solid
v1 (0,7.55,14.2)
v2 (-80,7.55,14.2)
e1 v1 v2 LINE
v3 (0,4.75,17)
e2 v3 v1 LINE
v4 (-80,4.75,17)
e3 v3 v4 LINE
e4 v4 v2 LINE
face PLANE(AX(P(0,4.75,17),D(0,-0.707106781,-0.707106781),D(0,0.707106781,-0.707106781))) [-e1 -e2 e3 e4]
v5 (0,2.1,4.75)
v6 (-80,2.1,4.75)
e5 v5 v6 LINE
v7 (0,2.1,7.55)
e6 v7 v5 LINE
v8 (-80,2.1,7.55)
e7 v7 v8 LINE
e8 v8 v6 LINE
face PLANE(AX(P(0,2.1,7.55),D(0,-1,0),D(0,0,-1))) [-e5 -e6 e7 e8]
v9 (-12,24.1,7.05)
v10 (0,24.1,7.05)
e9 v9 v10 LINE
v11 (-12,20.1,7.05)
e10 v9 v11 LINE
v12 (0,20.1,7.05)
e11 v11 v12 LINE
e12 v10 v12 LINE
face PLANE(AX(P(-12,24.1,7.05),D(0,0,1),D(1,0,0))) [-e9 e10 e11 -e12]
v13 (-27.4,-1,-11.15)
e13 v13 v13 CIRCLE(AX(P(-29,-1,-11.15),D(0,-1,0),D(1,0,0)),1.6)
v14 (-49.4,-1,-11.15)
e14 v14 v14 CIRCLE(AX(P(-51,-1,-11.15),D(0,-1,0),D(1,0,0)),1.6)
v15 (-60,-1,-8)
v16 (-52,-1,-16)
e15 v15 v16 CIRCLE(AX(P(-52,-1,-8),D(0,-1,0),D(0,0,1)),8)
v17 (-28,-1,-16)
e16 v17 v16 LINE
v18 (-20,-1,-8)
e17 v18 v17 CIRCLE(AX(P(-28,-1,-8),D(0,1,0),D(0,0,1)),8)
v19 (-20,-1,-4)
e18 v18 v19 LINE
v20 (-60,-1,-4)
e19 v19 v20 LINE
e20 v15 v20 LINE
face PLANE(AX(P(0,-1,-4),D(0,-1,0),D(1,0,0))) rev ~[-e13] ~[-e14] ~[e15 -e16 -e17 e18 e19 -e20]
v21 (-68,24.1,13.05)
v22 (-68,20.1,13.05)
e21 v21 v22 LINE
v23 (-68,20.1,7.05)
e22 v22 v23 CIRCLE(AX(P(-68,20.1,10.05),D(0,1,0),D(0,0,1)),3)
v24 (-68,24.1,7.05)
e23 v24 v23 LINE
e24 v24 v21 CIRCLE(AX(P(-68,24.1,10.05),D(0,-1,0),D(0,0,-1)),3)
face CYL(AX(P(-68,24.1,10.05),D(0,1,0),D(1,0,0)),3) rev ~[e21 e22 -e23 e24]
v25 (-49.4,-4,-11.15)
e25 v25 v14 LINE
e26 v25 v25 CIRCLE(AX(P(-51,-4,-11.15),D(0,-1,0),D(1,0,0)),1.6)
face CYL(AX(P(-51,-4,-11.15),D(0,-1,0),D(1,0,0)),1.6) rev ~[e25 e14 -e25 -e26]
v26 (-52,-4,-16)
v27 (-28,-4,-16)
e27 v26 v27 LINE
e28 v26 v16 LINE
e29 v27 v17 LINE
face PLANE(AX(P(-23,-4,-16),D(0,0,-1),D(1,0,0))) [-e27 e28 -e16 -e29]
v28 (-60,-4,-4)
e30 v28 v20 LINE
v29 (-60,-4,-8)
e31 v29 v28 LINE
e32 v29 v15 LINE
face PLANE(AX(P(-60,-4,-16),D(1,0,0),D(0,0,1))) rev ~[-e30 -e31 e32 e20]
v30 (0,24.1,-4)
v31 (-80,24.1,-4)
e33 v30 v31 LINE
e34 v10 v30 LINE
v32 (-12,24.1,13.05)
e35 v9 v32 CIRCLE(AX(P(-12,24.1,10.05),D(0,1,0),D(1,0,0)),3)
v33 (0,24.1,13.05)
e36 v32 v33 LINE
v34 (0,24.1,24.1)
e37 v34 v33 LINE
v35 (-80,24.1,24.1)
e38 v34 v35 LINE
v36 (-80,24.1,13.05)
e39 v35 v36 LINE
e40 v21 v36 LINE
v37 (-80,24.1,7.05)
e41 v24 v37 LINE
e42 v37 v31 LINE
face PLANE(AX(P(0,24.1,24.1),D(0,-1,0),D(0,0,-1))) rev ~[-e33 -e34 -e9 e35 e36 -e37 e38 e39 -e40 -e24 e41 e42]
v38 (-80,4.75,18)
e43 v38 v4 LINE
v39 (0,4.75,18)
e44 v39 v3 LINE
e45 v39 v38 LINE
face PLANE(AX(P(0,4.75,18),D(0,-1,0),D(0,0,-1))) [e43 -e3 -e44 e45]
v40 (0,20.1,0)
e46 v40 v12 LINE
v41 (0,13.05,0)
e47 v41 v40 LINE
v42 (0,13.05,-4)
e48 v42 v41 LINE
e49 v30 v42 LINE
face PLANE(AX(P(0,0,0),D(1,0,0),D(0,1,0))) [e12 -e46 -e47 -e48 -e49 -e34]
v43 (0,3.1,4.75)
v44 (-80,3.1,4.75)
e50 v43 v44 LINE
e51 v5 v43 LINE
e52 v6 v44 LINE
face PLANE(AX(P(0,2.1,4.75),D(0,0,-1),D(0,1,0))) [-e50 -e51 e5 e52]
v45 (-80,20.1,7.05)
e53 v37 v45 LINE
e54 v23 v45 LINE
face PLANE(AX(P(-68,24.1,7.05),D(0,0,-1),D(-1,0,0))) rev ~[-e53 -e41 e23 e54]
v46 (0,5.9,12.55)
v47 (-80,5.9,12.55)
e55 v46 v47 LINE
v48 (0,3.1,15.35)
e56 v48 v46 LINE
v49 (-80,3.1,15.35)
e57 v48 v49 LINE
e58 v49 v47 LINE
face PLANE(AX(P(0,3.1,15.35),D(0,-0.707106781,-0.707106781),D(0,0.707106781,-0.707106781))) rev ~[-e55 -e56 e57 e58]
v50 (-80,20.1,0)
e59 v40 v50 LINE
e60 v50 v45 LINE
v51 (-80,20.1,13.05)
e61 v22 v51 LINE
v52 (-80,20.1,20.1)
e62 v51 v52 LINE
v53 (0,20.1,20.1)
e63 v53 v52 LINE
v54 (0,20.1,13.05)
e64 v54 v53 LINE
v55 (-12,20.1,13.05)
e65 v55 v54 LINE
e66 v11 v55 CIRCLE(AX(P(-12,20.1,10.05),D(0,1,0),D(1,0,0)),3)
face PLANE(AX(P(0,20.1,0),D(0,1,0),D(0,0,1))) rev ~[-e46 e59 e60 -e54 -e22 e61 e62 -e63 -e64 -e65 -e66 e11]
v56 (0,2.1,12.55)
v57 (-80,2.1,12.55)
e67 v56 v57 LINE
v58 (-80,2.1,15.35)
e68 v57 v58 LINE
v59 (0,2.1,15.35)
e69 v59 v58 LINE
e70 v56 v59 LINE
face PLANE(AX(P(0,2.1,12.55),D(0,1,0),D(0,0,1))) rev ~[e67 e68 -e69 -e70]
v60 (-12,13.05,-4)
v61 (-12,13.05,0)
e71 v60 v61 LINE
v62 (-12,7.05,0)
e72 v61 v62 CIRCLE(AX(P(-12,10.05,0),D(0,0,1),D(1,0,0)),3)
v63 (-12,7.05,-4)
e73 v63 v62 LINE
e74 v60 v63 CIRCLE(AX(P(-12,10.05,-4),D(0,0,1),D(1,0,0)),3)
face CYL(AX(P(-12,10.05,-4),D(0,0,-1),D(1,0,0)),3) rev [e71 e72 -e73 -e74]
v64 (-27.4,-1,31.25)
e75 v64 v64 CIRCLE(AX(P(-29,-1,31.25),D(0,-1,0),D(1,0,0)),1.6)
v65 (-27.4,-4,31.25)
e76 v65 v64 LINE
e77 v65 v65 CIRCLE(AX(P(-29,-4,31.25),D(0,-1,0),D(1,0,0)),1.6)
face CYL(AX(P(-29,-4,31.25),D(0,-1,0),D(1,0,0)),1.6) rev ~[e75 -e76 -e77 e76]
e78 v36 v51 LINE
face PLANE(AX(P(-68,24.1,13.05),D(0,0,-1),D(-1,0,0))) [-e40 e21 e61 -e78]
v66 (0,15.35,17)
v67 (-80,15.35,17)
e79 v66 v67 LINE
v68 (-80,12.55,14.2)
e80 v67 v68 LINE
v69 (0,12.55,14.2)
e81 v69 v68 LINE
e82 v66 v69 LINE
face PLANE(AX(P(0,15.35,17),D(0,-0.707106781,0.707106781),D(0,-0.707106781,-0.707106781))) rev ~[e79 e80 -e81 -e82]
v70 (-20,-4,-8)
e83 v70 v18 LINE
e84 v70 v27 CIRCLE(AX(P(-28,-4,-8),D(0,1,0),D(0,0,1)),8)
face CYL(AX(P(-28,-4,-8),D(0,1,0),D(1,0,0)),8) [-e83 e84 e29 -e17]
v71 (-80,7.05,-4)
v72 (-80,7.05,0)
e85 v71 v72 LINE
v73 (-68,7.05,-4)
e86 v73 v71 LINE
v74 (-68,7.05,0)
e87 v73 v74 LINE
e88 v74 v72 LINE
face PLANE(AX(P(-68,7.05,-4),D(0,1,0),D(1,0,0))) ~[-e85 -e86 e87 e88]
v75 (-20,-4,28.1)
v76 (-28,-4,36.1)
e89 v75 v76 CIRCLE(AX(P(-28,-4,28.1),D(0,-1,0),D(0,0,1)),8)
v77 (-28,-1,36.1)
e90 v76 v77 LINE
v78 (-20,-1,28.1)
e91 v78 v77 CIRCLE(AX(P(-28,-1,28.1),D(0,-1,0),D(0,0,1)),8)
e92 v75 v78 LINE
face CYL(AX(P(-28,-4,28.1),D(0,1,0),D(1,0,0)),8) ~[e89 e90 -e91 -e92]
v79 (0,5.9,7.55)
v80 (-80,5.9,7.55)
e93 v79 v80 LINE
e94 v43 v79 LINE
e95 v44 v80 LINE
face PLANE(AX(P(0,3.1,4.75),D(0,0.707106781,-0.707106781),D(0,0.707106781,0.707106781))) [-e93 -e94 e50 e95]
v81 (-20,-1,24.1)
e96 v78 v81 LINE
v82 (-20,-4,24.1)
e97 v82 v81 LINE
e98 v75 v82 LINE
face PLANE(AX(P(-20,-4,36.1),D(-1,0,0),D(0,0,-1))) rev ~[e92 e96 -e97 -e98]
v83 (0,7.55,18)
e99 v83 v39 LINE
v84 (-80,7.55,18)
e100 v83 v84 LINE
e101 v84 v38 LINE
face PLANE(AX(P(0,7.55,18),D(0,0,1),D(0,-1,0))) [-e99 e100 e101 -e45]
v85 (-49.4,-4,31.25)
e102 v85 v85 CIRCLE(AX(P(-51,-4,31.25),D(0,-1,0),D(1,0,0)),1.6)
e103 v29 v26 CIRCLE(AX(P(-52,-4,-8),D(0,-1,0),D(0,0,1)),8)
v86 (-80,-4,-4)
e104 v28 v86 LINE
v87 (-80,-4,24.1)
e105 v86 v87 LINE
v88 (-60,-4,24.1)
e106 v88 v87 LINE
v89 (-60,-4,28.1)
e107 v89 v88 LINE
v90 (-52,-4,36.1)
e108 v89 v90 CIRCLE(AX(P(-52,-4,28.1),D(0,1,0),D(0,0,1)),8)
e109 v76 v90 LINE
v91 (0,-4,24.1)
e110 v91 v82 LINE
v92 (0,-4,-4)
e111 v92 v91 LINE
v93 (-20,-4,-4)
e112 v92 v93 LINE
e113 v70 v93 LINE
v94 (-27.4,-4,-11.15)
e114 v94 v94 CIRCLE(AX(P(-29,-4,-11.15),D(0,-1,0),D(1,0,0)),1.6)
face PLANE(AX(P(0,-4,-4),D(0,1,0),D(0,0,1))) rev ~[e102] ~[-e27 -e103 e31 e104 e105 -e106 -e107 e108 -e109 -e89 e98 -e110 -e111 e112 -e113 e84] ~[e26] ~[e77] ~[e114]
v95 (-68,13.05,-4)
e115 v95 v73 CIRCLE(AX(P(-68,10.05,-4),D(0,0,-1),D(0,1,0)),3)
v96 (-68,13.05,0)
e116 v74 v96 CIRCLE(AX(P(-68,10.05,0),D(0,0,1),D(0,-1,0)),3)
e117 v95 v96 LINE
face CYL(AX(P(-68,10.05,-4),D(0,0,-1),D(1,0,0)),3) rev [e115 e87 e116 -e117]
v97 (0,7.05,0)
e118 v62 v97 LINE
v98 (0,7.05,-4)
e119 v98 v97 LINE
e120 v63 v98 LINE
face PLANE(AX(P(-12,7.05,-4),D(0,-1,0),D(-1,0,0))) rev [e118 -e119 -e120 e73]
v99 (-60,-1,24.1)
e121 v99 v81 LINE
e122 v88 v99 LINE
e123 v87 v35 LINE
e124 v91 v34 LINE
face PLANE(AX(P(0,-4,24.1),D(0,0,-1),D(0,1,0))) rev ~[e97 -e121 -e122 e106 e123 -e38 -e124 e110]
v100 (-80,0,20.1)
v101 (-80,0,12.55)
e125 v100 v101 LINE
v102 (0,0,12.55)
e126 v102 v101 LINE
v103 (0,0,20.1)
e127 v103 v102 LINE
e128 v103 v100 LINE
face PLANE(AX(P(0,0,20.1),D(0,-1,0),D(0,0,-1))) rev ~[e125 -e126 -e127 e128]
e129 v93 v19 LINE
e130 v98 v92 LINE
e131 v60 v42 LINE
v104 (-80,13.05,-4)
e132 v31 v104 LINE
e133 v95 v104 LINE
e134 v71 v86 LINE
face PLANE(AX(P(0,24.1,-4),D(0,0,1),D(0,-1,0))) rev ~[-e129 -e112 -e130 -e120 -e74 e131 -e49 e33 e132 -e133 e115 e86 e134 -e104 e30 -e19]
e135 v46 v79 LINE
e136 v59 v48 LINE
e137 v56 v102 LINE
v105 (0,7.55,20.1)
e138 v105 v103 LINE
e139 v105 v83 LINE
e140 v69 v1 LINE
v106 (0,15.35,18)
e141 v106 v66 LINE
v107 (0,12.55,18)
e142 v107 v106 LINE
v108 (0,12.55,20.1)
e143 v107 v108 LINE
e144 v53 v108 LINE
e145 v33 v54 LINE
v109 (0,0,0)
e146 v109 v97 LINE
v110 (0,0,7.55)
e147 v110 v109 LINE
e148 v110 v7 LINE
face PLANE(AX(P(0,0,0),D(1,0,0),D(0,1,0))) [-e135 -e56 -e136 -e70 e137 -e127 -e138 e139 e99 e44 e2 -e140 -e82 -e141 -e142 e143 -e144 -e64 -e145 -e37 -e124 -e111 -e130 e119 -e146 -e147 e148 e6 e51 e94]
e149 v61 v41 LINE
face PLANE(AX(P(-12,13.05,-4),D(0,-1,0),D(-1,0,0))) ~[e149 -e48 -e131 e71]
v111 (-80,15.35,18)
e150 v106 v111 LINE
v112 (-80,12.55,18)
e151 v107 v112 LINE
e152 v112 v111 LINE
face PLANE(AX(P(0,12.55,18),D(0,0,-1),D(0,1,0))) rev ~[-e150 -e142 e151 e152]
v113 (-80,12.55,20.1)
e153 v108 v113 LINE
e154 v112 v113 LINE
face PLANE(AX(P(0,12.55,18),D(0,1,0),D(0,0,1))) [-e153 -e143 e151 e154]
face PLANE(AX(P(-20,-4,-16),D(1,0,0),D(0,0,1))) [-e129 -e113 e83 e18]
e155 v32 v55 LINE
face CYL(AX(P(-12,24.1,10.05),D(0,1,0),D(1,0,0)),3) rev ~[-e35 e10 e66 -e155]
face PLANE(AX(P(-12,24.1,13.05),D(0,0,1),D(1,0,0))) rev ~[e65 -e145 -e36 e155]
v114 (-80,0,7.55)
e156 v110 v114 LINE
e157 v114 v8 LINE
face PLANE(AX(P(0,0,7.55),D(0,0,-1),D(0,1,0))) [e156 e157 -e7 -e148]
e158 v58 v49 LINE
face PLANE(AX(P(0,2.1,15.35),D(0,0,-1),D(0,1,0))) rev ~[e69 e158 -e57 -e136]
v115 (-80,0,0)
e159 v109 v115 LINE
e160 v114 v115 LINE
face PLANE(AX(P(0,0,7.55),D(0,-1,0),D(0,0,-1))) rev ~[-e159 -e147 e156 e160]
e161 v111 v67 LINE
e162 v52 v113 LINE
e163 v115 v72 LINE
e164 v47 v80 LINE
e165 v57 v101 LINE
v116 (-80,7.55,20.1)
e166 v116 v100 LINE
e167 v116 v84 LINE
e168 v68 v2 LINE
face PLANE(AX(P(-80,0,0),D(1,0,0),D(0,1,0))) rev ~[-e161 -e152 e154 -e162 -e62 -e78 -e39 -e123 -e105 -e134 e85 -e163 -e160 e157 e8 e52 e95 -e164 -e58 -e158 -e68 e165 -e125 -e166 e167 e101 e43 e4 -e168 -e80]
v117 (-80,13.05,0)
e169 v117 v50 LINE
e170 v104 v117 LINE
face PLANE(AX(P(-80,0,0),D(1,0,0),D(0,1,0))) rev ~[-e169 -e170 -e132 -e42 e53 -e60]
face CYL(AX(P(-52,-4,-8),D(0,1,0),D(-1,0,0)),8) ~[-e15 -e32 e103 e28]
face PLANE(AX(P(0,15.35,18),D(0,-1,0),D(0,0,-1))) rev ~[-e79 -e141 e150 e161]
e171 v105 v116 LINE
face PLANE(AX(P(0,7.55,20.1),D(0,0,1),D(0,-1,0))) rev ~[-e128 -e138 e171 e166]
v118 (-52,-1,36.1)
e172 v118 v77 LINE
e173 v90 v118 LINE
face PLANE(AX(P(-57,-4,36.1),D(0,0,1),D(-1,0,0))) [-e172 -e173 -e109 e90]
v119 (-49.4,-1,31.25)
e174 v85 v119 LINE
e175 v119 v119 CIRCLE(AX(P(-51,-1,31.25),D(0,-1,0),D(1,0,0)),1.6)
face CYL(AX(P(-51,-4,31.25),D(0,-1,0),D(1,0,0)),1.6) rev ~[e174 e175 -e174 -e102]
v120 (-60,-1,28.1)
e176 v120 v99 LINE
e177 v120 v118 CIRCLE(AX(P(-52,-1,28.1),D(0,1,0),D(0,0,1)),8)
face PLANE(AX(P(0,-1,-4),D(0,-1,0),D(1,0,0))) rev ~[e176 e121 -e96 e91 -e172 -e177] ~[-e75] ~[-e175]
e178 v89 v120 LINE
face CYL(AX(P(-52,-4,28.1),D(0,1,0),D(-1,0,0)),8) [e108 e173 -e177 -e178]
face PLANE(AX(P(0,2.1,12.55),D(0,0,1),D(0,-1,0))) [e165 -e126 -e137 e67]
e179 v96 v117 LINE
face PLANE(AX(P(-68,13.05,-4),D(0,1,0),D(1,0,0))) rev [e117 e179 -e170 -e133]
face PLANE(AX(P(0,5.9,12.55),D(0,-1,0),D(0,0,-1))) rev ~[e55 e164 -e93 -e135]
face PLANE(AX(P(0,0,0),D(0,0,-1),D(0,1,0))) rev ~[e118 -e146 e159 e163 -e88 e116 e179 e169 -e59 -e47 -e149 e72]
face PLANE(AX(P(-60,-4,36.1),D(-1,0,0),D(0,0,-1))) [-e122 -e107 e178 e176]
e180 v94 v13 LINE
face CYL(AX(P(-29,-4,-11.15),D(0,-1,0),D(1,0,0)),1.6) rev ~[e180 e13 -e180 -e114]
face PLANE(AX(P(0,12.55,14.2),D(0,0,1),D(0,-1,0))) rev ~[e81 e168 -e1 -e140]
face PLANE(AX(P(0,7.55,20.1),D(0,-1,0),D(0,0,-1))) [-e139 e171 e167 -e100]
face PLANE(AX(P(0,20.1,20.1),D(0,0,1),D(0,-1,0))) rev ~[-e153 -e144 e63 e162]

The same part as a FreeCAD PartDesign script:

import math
import FreeCAD as App
import Part
import Sketcher

V = App.Vector


def edges_at(feature, points):
    """Names of the edges that pass closest to the given points."""
    edges = feature.Shape.Edges
    near = lambda p: min(range(len(edges)), key=lambda i: edges[i].distToShape(Part.Vertex(*p))[0])
    return sorted({f"Edge{near(p) + 1}" for p in points})


def add_polygon(sketch, points):
    """Adds a closed chain of lines whose ends are joined by coincident constraints."""
    first, n = sketch.GeometryCount, len(points)
    for a, b in zip(points, points[1:] + points[:1]):
        sketch.addGeometry(Part.LineSegment(App.Vector(*a, 0), App.Vector(*b, 0)), False)
    for i in range(n):
        sketch.addConstraint(Sketcher.Constraint("Coincident", first + i, 2, first + (i + 1) % n, 1))

doc = App.newDocument("Part")
body = doc.addObject("PartDesign::Body", "Body")

sketch1 = body.newObject("Sketcher::SketchObject", "Sketch")
sketch1.AttachmentSupport = (doc.getObject("YZ_Plane"), [""])
sketch1.MapMode = "FlatFace"
add_polygon(sketch1, [(24.1, 24.1), (-4, 24.1), (-4, -4), (24.1, -4)])
add_polygon(sketch1, [(20.1, 0), (0, 0), (0, 7.5), (2.1, 7.5), (2.1, 4.8), (3.1, 4.8), (5.9, 7.5), (5.9, 12.6), (3.1, 15.3), (2.1, 15.3), (2.1, 12.6), (0, 12.6), (0, 20.1), (7.5, 20.1), (7.5, 18), (4.8, 18), (4.8, 17), (7.5, 14.2), (12.6, 14.2), (15.3, 17), (15.3, 18), (12.6, 18), (12.6, 20.1), (20.1, 20.1)])
sketch1.addConstraint([
    Sketcher.Constraint("Horizontal", 0),
    Sketcher.Constraint("Vertical", 1),
    Sketcher.Constraint("Horizontal", 2),
    Sketcher.Constraint("Vertical", 3),
    Sketcher.Constraint("Horizontal", 4),
    Sketcher.Constraint("Vertical", 5),
    Sketcher.Constraint("Horizontal", 6),
    Sketcher.Constraint("Vertical", 7),
    Sketcher.Constraint("Horizontal", 8),
    Sketcher.Constraint("Vertical", 10),
    Sketcher.Constraint("Horizontal", 12),
    Sketcher.Constraint("Vertical", 13),
    Sketcher.Constraint("Horizontal", 14),
    Sketcher.Constraint("Vertical", 15),
    Sketcher.Constraint("Horizontal", 16),
    Sketcher.Constraint("Vertical", 17),
    Sketcher.Constraint("Horizontal", 18),
    Sketcher.Constraint("Vertical", 19),
    Sketcher.Constraint("Horizontal", 21),
    Sketcher.Constraint("Vertical", 23),
    Sketcher.Constraint("Horizontal", 24),
    Sketcher.Constraint("Vertical", 25),
    Sketcher.Constraint("Horizontal", 26),
    Sketcher.Constraint("Vertical", 27),
    Sketcher.Constraint("Coincident", 4, 2, -1, 1),
    Sketcher.Constraint("PointOnObject", 14, 2, -2),
    Sketcher.Constraint("Perpendicular", 9, 11),
    Sketcher.Constraint("Parallel", 11, 20),
    Sketcher.Constraint("Perpendicular", 20, 22),
    Sketcher.Constraint("Horizontal", 6, 2, 9, 2),
    Sketcher.Constraint("Horizontal", 10, 2, 13, 2),
    Sketcher.Constraint("Horizontal", 19, 2, 22, 2),
    Sketcher.Constraint("Horizontal", 18, 2, 23, 2),
    Sketcher.Constraint("Horizontal", 16, 2, 25, 2),
    Sketcher.Constraint("Vertical", 8, 2, 11, 2),
    Sketcher.Constraint("Vertical", 7, 2, 12, 2),
    Sketcher.Constraint("Vertical", 17, 2, 20, 2),
    Sketcher.Constraint("Vertical", 21, 2, 24, 2),
    Sketcher.Constraint("Equal", 18, 24),
    Sketcher.Constraint("Equal", 16, 26),
    Sketcher.Constraint("Equal", 2, 1),
    Sketcher.Constraint("Equal", 26, 5),
    Sketcher.Constraint("Equal", 24, 7),
    Sketcher.Constraint("Equal", 21, 10),
    Sketcher.Constraint("Equal", 5, 15),
    Sketcher.Constraint("Equal", 14, 17),
    Sketcher.Constraint("Equal", 12, 19),
    Sketcher.Constraint("DistanceX", 8, 1, 8, 2, 1.0),
    Sketcher.Constraint("DistanceX", 21, 1, 21, 2, 5.0),
    Sketcher.Constraint("DistanceX", 4, 2, 4, 1, 20.1),
    Sketcher.Constraint("DistanceX", 6, 1, 6, 2, 2.1),
    Sketcher.Constraint("DistanceX", 18, 2, 18, 1, 2.8),
    Sketcher.Constraint("DistanceX", 0, 2, -1, 1, 4.0),
    Sketcher.Constraint("DistanceY", 1, 2, -1, 1, 4.0),
    Sketcher.Constraint("DistanceY", 15, 2, 0, 2, 4.0),
])
pad1 = body.newObject("PartDesign::Pad", "Pad")
pad1.Profile = sketch1
pad1.Length = 80
pad1.Reversed = True

sketch2 = body.newObject("Sketcher::SketchObject", "Sketch001")
sketch2.AttachmentSupport = (doc.getObject("XZ_Plane"), [""])
sketch2.MapMode = "FlatFace"
sketch2.AttachmentOffset = App.Placement(V(0, 0, 4), App.Rotation())
add_polygon(sketch2, [(-20, -16), (-20, -4), (-60, -4), (-60, -16)])
sketch2.addGeometry(Part.Circle(V(-51, -11.2, 0), V(0, 0, 1), 1.6), False)
sketch2.addGeometry(Part.Circle(V(-29, -11.2, 0), V(0, 0, 1), 1.6), False)
sketch2.addConstraint([
    Sketcher.Constraint("Vertical", 0),
    Sketcher.Constraint("Horizontal", 1),
    Sketcher.Constraint("Vertical", 2),
    Sketcher.Constraint("Horizontal", 3),
    Sketcher.Constraint("Equal", 4, 5),
    Sketcher.Constraint("Horizontal", 4, 3, 5, 3),
    Sketcher.Constraint("Diameter", 4, 3.2),
    Sketcher.Constraint("DistanceY", 0, 1, 0, 2, 12.0),
    Sketcher.Constraint("DistanceX", 4, 3, 5, 3, 22.0),
    Sketcher.Constraint("DistanceX", 1, 2, 1, 1, 40.0),
    Sketcher.Constraint("DistanceX", 4, 3, -1, 1, 51.0),
    Sketcher.Constraint("DistanceX", 0, 2, -1, 1, 20.0),
    Sketcher.Constraint("DistanceY", 0, 2, -1, 1, 4.0),
    Sketcher.Constraint("DistanceY", 4, 3, -1, 1, 11.15),
])
pad2 = body.newObject("PartDesign::Pad", "Pad001")
pad2.Profile = sketch2
pad2.Length = 3
pad2.Reversed = True

sketch3 = body.newObject("Sketcher::SketchObject", "Sketch002")
sketch3.AttachmentSupport = (doc.getObject("XZ_Plane"), [""])
sketch3.MapMode = "FlatFace"
sketch3.AttachmentOffset = App.Placement(V(0, 0, -24.1), App.Rotation())
sketch3.addGeometry([
    Part.LineSegment(V(0, 7, 0), V(-12, 7, 0)),
    Part.ArcOfCircle(Part.Circle(V(-12, 10.1, 0), V(0, 0, 1), 3), math.radians(90), math.radians(270)),
    Part.LineSegment(V(-12, 13.1, 0), V(0, 13.1, 0)),
    Part.LineSegment(V(0, 13.1, 0), V(0, 7, 0)),
    Part.LineSegment(V(-68, 7, 0), V(-80, 7, 0)),
    Part.LineSegment(V(-80, 7, 0), V(-80, 13.1, 0)),
    Part.LineSegment(V(-80, 13.1, 0), V(-68, 13.1, 0)),
    Part.ArcOfCircle(Part.Circle(V(-68, 10.1, 0), V(0, 0, 1), 3), math.radians(-90), math.radians(90)),
], False)
sketch3.addConstraint([
    Sketcher.Constraint("Tangent", 0, 2, 1, 2),
    Sketcher.Constraint("Tangent", 1, 1, 2, 1),
    Sketcher.Constraint("Coincident", 2, 2, 3, 1),
    Sketcher.Constraint("Coincident", 3, 2, 0, 1),
    Sketcher.Constraint("Coincident", 4, 2, 5, 1),
    Sketcher.Constraint("Coincident", 5, 2, 6, 1),
    Sketcher.Constraint("Tangent", 6, 2, 7, 2),
    Sketcher.Constraint("Tangent", 7, 1, 4, 1),
    Sketcher.Constraint("Horizontal", 0),
    Sketcher.Constraint("Horizontal", 2),
    Sketcher.Constraint("Vertical", 3),
    Sketcher.Constraint("Horizontal", 4),
    Sketcher.Constraint("Vertical", 5),
    Sketcher.Constraint("Horizontal", 6),
    Sketcher.Constraint("Equal", 1, 7),
    Sketcher.Constraint("PointOnObject", 2, 2, -2),
    Sketcher.Constraint("Horizontal", 1, 3, 7, 3),
    Sketcher.Constraint("Equal", 2, 4),
    Sketcher.Constraint("Radius", 1, 3.0),
    Sketcher.Constraint("DistanceX", 0, 2, 0, 1, 12.0),
    Sketcher.Constraint("DistanceX", 7, 3, -1, 1, 68.0),
    Sketcher.Constraint("DistanceY", -1, 1, 1, 3, 10.05),
])
pocket1 = body.newObject("PartDesign::Pocket", "Pocket")
pocket1.Profile = sketch3
pocket1.Length = 4
pocket1.Reversed = True
doc.recompute()

datumplane = body.newObject("PartDesign::Plane", "DatumPlane")
datumplane.Placement = App.Placement(V(0, 10.05, 10.05), App.Rotation(V(0, -0.707106781, 0.707106781), V(-1, 0, 0), V(0, -0.707106781, -0.707106781), "ZXY"))
mirrored = body.newObject("PartDesign::Mirrored", "Mirrored")
mirrored.Originals = [pocket1]
mirrored.MirrorPlane = (datumplane, [""])
body.Tip = mirrored

sketch4 = body.newObject("Sketcher::SketchObject", "Sketch003")
sketch4.AttachmentSupport = (doc.getObject("XZ_Plane"), [""])
sketch4.MapMode = "FlatFace"
sketch4.AttachmentOffset = App.Placement(V(0, 0, 4), App.Rotation())
add_polygon(sketch4, [(-60, 24.1), (-20, 24.1), (-20, 36.1), (-60, 36.1)])
sketch4.addGeometry(Part.Circle(V(-51, 31.2, 0), V(0, 0, 1), 1.6), False)
sketch4.addGeometry(Part.Circle(V(-29, 31.2, 0), V(0, 0, 1), 1.6), False)
sketch4.addConstraint([
    Sketcher.Constraint("Horizontal", 0),
    Sketcher.Constraint("Vertical", 1),
    Sketcher.Constraint("Horizontal", 2),
    Sketcher.Constraint("Vertical", 3),
    Sketcher.Constraint("Equal", 4, 5),
    Sketcher.Constraint("Horizontal", 4, 3, 5, 3),
    Sketcher.Constraint("Diameter", 4, 3.2),
    Sketcher.Constraint("DistanceY", 1, 1, 1, 2, 12.0),
    Sketcher.Constraint("DistanceX", 4, 3, 5, 3, 22.0),
    Sketcher.Constraint("DistanceX", 0, 1, 0, 2, 40.0),
    Sketcher.Constraint("DistanceX", 4, 3, -1, 1, 51.0),
    Sketcher.Constraint("DistanceX", 0, 2, -1, 1, 20.0),
    Sketcher.Constraint("DistanceY", -1, 1, 0, 2, 24.1),
    Sketcher.Constraint("DistanceY", -1, 1, 4, 3, 31.25),
])
pad3 = body.newObject("PartDesign::Pad", "Pad002")
pad3.Profile = sketch4
pad3.Length = 3
pad3.Reversed = True
doc.recompute()

fillet = body.newObject("PartDesign::Fillet", "Fillet")
fillet.Base = (pad3, edges_at(pad3, [
    (-60, -2.5, 36.1),
    (-20, -2.5, 36.1),
    (-20, -2.5, -16),
    (-60, -2.5, -16),
]))
fillet.Radius = 8

doc.recompute()
